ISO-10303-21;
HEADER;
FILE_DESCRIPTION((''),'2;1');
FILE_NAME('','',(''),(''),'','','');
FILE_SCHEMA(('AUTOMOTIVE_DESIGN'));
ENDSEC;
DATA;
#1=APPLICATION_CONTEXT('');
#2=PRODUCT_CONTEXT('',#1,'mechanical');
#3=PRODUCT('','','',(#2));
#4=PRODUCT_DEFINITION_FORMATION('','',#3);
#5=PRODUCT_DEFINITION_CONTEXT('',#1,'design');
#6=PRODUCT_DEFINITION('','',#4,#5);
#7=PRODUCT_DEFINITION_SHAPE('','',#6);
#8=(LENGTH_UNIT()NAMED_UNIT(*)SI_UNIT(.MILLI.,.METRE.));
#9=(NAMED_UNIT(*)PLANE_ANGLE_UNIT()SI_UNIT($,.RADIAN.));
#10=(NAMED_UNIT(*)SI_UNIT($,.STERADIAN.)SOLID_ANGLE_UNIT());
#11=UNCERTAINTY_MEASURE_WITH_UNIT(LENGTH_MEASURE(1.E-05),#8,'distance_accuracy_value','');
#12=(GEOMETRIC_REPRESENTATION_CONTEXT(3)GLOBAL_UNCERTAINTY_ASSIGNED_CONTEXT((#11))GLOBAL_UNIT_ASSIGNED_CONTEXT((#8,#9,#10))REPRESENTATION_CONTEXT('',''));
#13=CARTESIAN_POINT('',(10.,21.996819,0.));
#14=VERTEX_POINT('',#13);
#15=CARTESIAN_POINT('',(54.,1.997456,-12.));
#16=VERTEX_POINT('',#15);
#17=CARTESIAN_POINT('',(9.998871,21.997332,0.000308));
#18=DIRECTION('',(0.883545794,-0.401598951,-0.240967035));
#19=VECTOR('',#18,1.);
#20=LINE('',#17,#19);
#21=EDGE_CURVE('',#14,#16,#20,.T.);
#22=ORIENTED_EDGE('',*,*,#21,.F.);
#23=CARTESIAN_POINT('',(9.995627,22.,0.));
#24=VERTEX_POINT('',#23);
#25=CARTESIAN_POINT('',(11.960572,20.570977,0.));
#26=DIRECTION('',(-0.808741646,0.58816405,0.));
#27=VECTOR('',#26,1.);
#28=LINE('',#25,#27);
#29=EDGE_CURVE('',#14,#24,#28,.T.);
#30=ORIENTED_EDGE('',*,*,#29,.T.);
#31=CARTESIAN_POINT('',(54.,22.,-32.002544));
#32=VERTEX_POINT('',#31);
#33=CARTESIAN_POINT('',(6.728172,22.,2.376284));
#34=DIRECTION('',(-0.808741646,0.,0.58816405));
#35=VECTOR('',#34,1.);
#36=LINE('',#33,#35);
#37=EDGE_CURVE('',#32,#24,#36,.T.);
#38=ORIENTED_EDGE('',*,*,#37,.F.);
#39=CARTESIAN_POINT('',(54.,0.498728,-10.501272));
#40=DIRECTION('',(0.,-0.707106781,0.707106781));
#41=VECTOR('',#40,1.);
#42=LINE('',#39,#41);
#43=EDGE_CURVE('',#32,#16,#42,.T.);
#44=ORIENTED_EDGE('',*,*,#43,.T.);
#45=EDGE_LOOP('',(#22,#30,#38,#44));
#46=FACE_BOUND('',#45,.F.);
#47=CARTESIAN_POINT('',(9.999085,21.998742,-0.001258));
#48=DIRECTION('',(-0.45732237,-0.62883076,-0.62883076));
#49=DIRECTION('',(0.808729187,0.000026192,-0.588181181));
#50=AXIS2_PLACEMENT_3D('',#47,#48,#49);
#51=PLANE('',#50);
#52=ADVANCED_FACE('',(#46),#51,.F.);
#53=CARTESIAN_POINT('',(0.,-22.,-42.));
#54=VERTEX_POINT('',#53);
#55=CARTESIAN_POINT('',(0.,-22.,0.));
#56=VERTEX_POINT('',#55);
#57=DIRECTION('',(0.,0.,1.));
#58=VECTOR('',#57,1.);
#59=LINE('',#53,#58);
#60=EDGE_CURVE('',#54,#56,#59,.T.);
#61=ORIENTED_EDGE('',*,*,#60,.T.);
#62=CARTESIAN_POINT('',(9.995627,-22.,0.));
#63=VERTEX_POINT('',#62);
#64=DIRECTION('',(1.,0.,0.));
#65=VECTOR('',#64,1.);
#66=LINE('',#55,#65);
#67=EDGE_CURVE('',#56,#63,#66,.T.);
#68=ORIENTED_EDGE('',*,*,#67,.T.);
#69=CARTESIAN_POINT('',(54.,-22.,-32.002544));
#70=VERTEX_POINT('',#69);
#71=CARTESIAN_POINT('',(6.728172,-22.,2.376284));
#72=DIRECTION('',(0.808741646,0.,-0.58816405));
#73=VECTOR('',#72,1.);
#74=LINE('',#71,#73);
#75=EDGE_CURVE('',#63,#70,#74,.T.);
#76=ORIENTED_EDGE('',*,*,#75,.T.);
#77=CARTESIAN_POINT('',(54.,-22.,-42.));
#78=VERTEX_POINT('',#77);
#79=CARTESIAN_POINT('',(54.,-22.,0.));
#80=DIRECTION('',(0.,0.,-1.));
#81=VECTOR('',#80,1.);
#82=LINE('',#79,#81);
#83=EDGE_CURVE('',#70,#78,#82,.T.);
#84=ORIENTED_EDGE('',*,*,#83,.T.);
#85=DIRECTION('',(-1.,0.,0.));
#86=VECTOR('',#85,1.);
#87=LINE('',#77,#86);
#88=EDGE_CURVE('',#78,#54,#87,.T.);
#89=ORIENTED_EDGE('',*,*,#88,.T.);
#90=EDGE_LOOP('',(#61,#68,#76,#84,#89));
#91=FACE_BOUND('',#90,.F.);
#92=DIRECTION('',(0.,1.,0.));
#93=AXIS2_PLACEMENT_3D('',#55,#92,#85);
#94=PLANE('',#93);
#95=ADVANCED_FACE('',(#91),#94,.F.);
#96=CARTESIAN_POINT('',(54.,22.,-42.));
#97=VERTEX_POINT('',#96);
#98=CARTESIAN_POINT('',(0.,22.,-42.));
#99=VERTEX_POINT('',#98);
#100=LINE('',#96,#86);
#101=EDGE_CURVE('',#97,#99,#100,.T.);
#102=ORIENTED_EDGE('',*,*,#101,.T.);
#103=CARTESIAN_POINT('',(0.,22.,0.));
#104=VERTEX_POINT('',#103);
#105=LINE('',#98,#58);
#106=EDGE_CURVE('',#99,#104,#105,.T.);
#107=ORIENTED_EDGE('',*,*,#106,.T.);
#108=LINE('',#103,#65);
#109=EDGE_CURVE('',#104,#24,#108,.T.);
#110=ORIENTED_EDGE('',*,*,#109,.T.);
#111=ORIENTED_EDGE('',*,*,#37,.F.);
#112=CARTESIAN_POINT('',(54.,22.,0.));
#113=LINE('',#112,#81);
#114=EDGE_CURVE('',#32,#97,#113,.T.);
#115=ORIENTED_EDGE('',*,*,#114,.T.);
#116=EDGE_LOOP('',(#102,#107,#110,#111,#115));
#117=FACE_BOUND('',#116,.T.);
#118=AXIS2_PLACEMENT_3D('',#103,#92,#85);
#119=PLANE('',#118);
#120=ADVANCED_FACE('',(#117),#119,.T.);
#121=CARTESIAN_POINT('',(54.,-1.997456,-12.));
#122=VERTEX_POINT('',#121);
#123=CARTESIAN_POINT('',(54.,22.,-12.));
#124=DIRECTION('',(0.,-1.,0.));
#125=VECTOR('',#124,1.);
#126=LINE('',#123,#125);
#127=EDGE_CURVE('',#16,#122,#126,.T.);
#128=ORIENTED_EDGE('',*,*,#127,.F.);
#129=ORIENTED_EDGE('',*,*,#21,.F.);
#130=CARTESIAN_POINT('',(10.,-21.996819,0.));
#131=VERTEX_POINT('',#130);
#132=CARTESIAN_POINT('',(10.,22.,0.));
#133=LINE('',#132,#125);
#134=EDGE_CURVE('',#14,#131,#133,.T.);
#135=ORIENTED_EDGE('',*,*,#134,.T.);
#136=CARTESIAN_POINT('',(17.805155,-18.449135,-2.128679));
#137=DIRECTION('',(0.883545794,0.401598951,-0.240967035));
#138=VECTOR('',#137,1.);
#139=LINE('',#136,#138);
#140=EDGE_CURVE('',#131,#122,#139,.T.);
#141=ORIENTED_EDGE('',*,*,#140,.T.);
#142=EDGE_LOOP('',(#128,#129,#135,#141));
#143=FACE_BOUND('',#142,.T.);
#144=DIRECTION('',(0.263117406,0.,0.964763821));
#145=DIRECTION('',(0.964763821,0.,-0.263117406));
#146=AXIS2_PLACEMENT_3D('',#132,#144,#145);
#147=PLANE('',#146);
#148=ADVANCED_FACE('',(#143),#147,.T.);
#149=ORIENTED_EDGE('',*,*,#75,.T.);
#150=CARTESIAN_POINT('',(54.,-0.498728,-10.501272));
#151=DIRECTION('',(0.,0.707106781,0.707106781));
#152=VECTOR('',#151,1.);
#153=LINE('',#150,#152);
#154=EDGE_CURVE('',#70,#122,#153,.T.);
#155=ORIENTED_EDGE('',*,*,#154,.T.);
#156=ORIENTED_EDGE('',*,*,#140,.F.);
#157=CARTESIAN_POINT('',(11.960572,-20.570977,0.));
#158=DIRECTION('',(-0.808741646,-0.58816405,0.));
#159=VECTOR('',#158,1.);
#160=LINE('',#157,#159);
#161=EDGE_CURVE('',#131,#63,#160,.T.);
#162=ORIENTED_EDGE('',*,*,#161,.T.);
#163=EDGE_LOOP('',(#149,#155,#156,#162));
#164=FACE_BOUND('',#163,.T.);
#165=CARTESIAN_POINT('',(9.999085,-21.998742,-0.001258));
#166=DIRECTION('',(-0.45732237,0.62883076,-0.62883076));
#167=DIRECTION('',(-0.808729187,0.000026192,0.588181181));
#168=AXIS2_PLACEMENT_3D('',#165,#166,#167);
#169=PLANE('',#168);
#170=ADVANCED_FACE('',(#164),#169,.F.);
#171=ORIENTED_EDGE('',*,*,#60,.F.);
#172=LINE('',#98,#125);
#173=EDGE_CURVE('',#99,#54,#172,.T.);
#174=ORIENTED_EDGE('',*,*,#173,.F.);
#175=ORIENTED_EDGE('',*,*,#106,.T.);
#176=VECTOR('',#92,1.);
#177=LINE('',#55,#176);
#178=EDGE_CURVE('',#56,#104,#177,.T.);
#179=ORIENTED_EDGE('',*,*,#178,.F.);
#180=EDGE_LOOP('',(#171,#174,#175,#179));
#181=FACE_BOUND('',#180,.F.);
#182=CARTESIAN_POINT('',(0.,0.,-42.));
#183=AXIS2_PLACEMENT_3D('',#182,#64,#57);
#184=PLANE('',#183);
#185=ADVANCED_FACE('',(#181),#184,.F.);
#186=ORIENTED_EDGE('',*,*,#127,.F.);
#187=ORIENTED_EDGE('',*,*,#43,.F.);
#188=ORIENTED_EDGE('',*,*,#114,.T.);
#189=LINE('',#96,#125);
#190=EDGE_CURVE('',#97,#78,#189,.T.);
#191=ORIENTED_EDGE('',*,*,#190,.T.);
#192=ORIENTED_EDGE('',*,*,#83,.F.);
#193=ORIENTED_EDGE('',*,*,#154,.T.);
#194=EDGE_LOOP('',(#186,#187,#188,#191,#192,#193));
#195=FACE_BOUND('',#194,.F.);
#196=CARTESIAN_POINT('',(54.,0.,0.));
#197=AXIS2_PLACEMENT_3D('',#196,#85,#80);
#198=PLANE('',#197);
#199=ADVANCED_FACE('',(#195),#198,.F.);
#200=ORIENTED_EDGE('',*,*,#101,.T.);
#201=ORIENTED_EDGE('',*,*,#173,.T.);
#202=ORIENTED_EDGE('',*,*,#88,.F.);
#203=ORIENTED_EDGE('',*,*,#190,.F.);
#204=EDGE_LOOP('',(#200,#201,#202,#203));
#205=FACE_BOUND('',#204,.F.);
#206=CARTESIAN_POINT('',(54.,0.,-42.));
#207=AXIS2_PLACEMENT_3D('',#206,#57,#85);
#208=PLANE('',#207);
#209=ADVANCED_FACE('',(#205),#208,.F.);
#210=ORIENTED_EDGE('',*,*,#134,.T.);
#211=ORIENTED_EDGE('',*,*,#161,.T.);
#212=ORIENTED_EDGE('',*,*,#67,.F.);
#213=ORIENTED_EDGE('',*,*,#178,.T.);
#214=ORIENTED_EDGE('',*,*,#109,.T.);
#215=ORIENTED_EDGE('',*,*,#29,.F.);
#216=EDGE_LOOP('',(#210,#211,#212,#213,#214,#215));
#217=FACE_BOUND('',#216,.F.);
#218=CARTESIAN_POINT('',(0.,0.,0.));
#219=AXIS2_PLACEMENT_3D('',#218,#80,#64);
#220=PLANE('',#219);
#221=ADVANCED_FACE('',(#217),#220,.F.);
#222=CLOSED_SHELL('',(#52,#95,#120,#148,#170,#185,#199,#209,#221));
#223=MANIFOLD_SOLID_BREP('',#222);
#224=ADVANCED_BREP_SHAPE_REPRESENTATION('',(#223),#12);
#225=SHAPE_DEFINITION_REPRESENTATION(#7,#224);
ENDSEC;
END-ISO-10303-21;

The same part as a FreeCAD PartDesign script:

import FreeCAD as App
import Part
import Sketcher
Q = App.Units.Quantity


def add_polygon(sketch, points):
    """Adds a closed chain of lines whose ends are joined by coincident constraints."""
    first, n = sketch.GeometryCount, len(points)
    for a, b in zip(points, points[1:] + points[:1]):
        sketch.addGeometry(Part.LineSegment(App.Vector(*a, 0), App.Vector(*b, 0)), False)
    for i in range(n):
        sketch.addConstraint(Sketcher.Constraint("Coincident", first + i, 2, first + (i + 1) % n, 1))

doc = App.newDocument("Part")
body = doc.addObject("PartDesign::Body", "Body")

# Sketch on XZ plane
sketch1 = body.newObject("Sketcher::SketchObject", "Sketch")
sketch1.AttachmentSupport = (doc.getObject("XZ_Plane"), [""])
sketch1.MapMode = "FlatFace"
add_polygon(sketch1, [(0, -42), (0, 0), (54, 0), (54, -42)])  # lines 0-3
sketch1.addConstraint([
    Sketcher.Constraint("Vertical", 0),
    Sketcher.Constraint("Horizontal", 1),
    Sketcher.Constraint("Vertical", 2),
    Sketcher.Constraint("Horizontal", 3),
    Sketcher.Constraint("Coincident", 0, 2, -1, 1),
    Sketcher.Constraint("DistanceX", 1, 1, 1, 2, Q("54 mm")),
    Sketcher.Constraint("DistanceY", 0, 1, 0, 2, Q("42 mm")),
])
pad1 = body.newObject("PartDesign::Pad", "Pad")
pad1.Profile = sketch1
pad1.Length = 44
pad1.Midplane = True

# Sketch on XZ plane
sketch2 = body.newObject("Sketcher::SketchObject", "Sketch001")
sketch2.AttachmentSupport = (doc.getObject("XZ_Plane"), [""])
sketch2.MapMode = "FlatFace"
sketch2.AttachmentOffset = App.Placement(App.Vector(0, 0, -22), App.Rotation())
add_polygon(sketch2, [(54, -12), (10, 0), (54, 0)])  # lines 0-2
sketch2.addConstraint([
    Sketcher.Constraint("Horizontal", 1),
    Sketcher.Constraint("Vertical", 2),
    Sketcher.Constraint("PointOnObject", 0, 2, -1),
    Sketcher.Constraint("DistanceX", -1, 1, 0, 2, Q("10 mm")),
    Sketcher.Constraint("DistanceX", 1, 1, 1, 2, Q("44 mm")),
    Sketcher.Constraint("DistanceY", 2, 2, 2, 1, Q("12 mm")),
])
pocket1 = body.newObject("PartDesign::Pocket", "Pocket")
pocket1.Profile = sketch2
pocket1.Length = 60
pocket1.Reversed = True

# Sketch on an angled plane
sketch3 = body.newObject("Sketcher::SketchObject", "Sketch002")
sketch3.Placement = App.Placement(App.Vector(10, 22, 0), App.Rotation(App.Vector(0.808729187, 0.000026192, -0.588181181), App.Vector(0.369882889, -0.777542201, 0.508541811), App.Vector(-0.45732237, -0.62883076, -0.62883076), "ZXY"))
add_polygon(sketch3, [(-15, 29), (-15, -12), (94, -12), (94, 29)])  # lines 0-3
sketch3.addConstraint([
    Sketcher.Constraint("Vertical", 0),
    Sketcher.Constraint("Horizontal", 1),
    Sketcher.Constraint("Vertical", 2),
    Sketcher.Constraint("Horizontal", 3),
    Sketcher.Constraint("DistanceX", 1, 1, 1, 2, Q("108.8713 mm")),
    Sketcher.Constraint("DistanceY", 0, 2, 0, 1, Q("41.1384 mm")),
    Sketcher.Constraint("DistanceX", -1, 1, 1, 2, Q("93.717 mm")),
    Sketcher.Constraint("DistanceY", 0, 2, -1, 1, Q("12.3218 mm")),
])
pocket2 = body.newObject("PartDesign::Pocket", "Pocket001")
pocket2.Profile = sketch3
pocket2.Length = 40
doc.recompute()

mirrored = body.newObject("PartDesign::Mirrored", "Mirrored")
mirrored.Originals = [pocket2]
mirrored.MirrorPlane = (doc.getObject("XZ_Plane"), [""])
body.Tip = mirrored

doc.recompute()
